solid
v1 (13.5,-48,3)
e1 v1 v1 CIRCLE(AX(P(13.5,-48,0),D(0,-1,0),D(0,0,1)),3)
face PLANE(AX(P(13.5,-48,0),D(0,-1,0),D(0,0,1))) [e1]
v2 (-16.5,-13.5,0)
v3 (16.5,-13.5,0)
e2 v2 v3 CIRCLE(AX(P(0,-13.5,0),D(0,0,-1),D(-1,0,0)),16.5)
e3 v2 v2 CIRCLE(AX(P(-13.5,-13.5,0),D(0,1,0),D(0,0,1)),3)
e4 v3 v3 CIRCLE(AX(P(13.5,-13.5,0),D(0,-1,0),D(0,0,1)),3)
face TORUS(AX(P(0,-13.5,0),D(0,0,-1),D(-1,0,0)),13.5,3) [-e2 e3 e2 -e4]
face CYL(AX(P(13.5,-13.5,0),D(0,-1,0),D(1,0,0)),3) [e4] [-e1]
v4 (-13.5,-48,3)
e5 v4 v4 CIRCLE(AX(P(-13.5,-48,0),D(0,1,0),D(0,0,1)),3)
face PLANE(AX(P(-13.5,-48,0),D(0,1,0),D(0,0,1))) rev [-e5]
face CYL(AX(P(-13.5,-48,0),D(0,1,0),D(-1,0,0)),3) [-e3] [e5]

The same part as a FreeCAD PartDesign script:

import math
import FreeCAD as App
import Part
import Sketcher
from FreeCAD import Vector

doc = App.newDocument("Part")
body = doc.addObject("PartDesign::Body", "Body")

# Sketch on XZ plane
sketch1 = body.newObject("Sketcher::SketchObject", "Sketch")
sketch1.AttachmentSupport = (doc.getObject("XZ_Plane"), [""])
sketch1.MapMode = "FlatFace"
sketch1.AttachmentOffset = App.Placement(Vector(0, 0, 48), App.Rotation())
sketch1.addGeometry(Part.Circle(Vector(-13.5, 0, 0), Vector(0, 0, 1), 3), False)
sketch1.addConstraint([
    Sketcher.Constraint("PointOnObject", 0, 3, -1),
    Sketcher.Constraint("Diameter", 0, 6.0),
    Sketcher.Constraint("DistanceX", 0, 3, -1, 1, 13.5),
])

# Sketch on XY plane
sketch2 = body.newObject("Sketcher::SketchObject", "Sketch001")
sketch2.AttachmentSupport = (doc.getObject("XY_Plane"), [""])
sketch2.MapMode = "FlatFace"
sketch2.addGeometry([
    Part.LineSegment(Vector(-14, -48, 0), Vector(-14, -14, 0)),
    Part.ArcOfCircle(Part.Circle(Vector(0, -14, 0), Vector(0, 0, 1), 14), math.radians(0), math.radians(180)),
    Part.LineSegment(Vector(14, -14, 0), Vector(14, -48, 0)),
], False)
sketch2.addConstraint([
    Sketcher.Constraint("Tangent", 0, 2, 1, 2),
    Sketcher.Constraint("Tangent", 1, 1, 2, 1),
    Sketcher.Constraint("Vertical", 0),
    Sketcher.Constraint("Vertical", 2),
    Sketcher.Constraint("Symmetric", 0, 1, 2, 2, -2),
    Sketcher.Constraint("Radius", 1, 13.5),
    Sketcher.Constraint("DistanceY", 0, 1, 0, 2, 34.5),
    Sketcher.Constraint("DistanceY", 0, 1, -1, 1, 48.0),
])
doc.recompute()

additivepipe = body.newObject("PartDesign::AdditivePipe", "AdditivePipe")
additivepipe.Profile = sketch1
additivepipe.Spine = (sketch2, ["Edge1", "Edge2", "Edge3"])

doc.recompute()
